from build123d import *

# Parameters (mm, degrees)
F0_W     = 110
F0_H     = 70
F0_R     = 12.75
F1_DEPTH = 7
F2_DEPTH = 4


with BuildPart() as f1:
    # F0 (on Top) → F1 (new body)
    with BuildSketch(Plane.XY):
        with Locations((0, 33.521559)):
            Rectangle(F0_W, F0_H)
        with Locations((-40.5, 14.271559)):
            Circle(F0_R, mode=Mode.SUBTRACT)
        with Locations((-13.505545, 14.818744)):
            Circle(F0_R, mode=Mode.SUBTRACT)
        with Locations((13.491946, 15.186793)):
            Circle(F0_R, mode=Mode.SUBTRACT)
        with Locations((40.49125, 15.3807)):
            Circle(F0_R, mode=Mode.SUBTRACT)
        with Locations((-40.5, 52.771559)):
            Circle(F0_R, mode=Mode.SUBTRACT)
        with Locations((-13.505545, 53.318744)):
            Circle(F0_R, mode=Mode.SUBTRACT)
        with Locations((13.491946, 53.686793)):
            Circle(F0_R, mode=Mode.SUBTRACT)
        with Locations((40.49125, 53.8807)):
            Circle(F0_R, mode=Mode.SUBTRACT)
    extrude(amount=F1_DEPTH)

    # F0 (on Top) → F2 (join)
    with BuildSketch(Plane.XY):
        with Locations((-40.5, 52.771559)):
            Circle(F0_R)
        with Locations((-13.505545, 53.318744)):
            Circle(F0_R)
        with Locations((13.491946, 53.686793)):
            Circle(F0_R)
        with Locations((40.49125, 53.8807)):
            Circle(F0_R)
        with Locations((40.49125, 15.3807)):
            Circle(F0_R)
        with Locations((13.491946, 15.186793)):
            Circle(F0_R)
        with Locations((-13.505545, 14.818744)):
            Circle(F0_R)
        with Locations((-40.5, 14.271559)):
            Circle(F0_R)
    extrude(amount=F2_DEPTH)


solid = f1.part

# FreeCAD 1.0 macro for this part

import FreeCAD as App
import Part
import Sketcher

V = App.Vector


def add_polygon(sketch, points):
    """Adds a closed chain of lines whose ends are joined by coincident constraints."""
    first, n = sketch.GeometryCount, len(points)
    for a, b in zip(points, points[1:] + points[:1]):
        sketch.addGeometry(Part.LineSegment(App.Vector(*a, 0), App.Vector(*b, 0)), False)
    for i in range(n):
        sketch.addConstraint(Sketcher.Constraint("Coincident", first + i, 2, first + (i + 1) % n, 1))

doc = App.newDocument("Part")
body = doc.addObject("PartDesign::Body", "Body")

# Sketch on XY plane
sketch1 = body.newObject("Sketcher::SketchObject", "Sketch")
sketch1.AttachmentSupport = (doc.getObject("XY_Plane"), [""])
sketch1.MapMode = "FlatFace"
add_polygon(sketch1, [(-55, 69), (-55, -1), (55, -1), (55, 69)])  # lines 0-3
sketch1.addGeometry(Part.Circle(V(-40, 14, 0), V(0, 0, 1), 13), False)  # 4
sketch1.addGeometry(Part.Circle(V(-14, 15, 0), V(0, 0, 1), 13), False)  # 5
sketch1.addGeometry(Part.Circle(V(13, 15, 0), V(0, 0, 1), 13), False)  # 6
sketch1.addGeometry(Part.Circle(V(40, 15, 0), V(0, 0, 1), 13), False)  # 7
sketch1.addGeometry(Part.Circle(V(-40, 53, 0), V(0, 0, 1), 13), False)  # 8
sketch1.addGeometry(Part.Circle(V(-14, 53, 0), V(0, 0, 1), 13), False)  # 9
sketch1.addGeometry(Part.Circle(V(13, 54, 0), V(0, 0, 1), 13), False)  # 10
sketch1.addGeometry(Part.Circle(V(40, 54, 0), V(0, 0, 1), 13), False)  # 11
sketch1.addConstraint([
    Sketcher.Constraint("Vertical", 0),
    Sketcher.Constraint("Horizontal", 1),
    Sketcher.Constraint("Vertical", 2),
    Sketcher.Constraint("Horizontal", 3),
    Sketcher.Constraint("Equal", 4, 5),
    Sketcher.Constraint("Equal", 5, 6),
    Sketcher.Constraint("Equal", 6, 7),
    Sketcher.Constraint("Equal", 7, 8),
    Sketcher.Constraint("Equal", 8, 9),
    Sketcher.Constraint("Equal", 9, 10),
    Sketcher.Constraint("Equal", 10, 11),
    Sketcher.Constraint("Vertical", 4, 3, 8, 3),
    Sketcher.Constraint("Vertical", 5, 3, 9, 3),
    Sketcher.Constraint("Vertical", 6, 3, 10, 3),
    Sketcher.Constraint("Vertical", 7, 3, 11, 3),
    Sketcher.Constraint("Diameter", 4, 25.5),
    Sketcher.Constraint("DistanceX", 1, 1, 1, 2, 110.0),
    Sketcher.Constraint("DistanceY", 0, 2, 0, 1, 70.0),
    Sketcher.Constraint("DistanceX", 0, 2, -1, 1, 55.0),
    Sketcher.Constraint("DistanceX", 4, 3, -1, 1, 40.5),
    Sketcher.Constraint("DistanceY", 4, 3, 8, 3, 38.5),
    Sketcher.Constraint("DistanceY", 5, 3, 9, 3, 38.5),
    Sketcher.Constraint("DistanceY", 6, 3, 10, 3, 38.5),
    Sketcher.Constraint("DistanceY", 7, 3, 11, 3, 38.5),
    Sketcher.Constraint("DistanceY", 0, 2, 4, 3, 15.75),
    Sketcher.Constraint("DistanceY", -1, 1, 7, 3, 15.3807),
    Sketcher.Constraint("DistanceY", -1, 1, 4, 3, 14.271559),
    Sketcher.Constraint("DistanceX", -1, 1, 7, 3, 40.49125),
    Sketcher.Constraint("DistanceX", 5, 3, 6, 3, 26.997491),
    Sketcher.Constraint("DistanceY", 5, 3, 6, 3, 0.368049),
    Sketcher.Constraint("DistanceX", 5, 3, -1, 1, 13.505545),
    Sketcher.Constraint("DistanceY", -1, 1, 5, 3, 14.818744),
])
pad1 = body.newObject("PartDesign::Pad", "Pad")
pad1.Profile = sketch1
pad1.Length = 7

# Sketch on XY plane
sketch2 = body.newObject("Sketcher::SketchObject", "Sketch001")
sketch2.AttachmentSupport = (doc.getObject("XY_Plane"), [""])
sketch2.MapMode = "FlatFace"
sketch2.addGeometry([
    Part.Circle(V(-40, 53, 0), V(0, 0, 1), 13),  # 0
    Part.Circle(V(-14, 53, 0), V(0, 0, 1), 13),  # 1
    Part.Circle(V(13, 54, 0), V(0, 0, 1), 13),  # 2
    Part.Circle(V(40, 54, 0), V(0, 0, 1), 13),  # 3
    Part.Circle(V(40, 15, 0), V(0, 0, 1), 13),  # 4
    Part.Circle(V(13, 15, 0), V(0, 0, 1), 13),  # 5
    Part.Circle(V(-14, 15, 0), V(0, 0, 1), 13),  # 6
    Part.Circle(V(-40, 14, 0), V(0, 0, 1), 13),  # 7
], False)
sketch2.addConstraint([
    Sketcher.Constraint("Equal", 0, 1),
    Sketcher.Constraint("Equal", 1, 2),
    Sketcher.Constraint("Equal", 2, 3),
    Sketcher.Constraint("Equal", 3, 4),
    Sketcher.Constraint("Equal", 4, 5),
    Sketcher.Constraint("Equal", 5, 6),
    Sketcher.Constraint("Equal", 6, 7),
    Sketcher.Constraint("Vertical", 3, 3, 4, 3),
    Sketcher.Constraint("Vertical", 2, 3, 5, 3),
    Sketcher.Constraint("Vertical", 1, 3, 6, 3),
    Sketcher.Constraint("Vertical", 0, 3, 7, 3),
    Sketcher.Constraint("Diameter", 0, 25.5),
    Sketcher.Constraint("DistanceX", 0, 3, -1, 1, 40.5),
    Sketcher.Constraint("DistanceY", 4, 3, 3, 3, 38.5),
    Sketcher.Constraint("DistanceY", 5, 3, 2, 3, 38.5),
    Sketcher.Constraint("DistanceY", 6, 3, 1, 3, 38.5),
    Sketcher.Constraint("DistanceY", 7, 3, 0, 3, 38.5),
    Sketcher.Constraint("DistanceY", -1, 1, 3, 3, 53.8807),
    Sketcher.Constraint("DistanceY", -1, 1, 0, 3, 52.771559),
    Sketcher.Constraint("DistanceX", -1, 1, 3, 3, 40.49125),
    Sketcher.Constraint("DistanceX", 1, 3, 2, 3, 26.997491),
    Sketcher.Constraint("DistanceY", 1, 3, 2, 3, 0.368049),
    Sketcher.Constraint("DistanceX", 1, 3, -1, 1, 13.505545),
    Sketcher.Constraint("DistanceY", -1, 1, 1, 3, 53.318744),
])
pad2 = body.newObject("PartDesign::Pad", "Pad001")
pad2.Profile = sketch2
pad2.Length = 4

doc.recompute()
